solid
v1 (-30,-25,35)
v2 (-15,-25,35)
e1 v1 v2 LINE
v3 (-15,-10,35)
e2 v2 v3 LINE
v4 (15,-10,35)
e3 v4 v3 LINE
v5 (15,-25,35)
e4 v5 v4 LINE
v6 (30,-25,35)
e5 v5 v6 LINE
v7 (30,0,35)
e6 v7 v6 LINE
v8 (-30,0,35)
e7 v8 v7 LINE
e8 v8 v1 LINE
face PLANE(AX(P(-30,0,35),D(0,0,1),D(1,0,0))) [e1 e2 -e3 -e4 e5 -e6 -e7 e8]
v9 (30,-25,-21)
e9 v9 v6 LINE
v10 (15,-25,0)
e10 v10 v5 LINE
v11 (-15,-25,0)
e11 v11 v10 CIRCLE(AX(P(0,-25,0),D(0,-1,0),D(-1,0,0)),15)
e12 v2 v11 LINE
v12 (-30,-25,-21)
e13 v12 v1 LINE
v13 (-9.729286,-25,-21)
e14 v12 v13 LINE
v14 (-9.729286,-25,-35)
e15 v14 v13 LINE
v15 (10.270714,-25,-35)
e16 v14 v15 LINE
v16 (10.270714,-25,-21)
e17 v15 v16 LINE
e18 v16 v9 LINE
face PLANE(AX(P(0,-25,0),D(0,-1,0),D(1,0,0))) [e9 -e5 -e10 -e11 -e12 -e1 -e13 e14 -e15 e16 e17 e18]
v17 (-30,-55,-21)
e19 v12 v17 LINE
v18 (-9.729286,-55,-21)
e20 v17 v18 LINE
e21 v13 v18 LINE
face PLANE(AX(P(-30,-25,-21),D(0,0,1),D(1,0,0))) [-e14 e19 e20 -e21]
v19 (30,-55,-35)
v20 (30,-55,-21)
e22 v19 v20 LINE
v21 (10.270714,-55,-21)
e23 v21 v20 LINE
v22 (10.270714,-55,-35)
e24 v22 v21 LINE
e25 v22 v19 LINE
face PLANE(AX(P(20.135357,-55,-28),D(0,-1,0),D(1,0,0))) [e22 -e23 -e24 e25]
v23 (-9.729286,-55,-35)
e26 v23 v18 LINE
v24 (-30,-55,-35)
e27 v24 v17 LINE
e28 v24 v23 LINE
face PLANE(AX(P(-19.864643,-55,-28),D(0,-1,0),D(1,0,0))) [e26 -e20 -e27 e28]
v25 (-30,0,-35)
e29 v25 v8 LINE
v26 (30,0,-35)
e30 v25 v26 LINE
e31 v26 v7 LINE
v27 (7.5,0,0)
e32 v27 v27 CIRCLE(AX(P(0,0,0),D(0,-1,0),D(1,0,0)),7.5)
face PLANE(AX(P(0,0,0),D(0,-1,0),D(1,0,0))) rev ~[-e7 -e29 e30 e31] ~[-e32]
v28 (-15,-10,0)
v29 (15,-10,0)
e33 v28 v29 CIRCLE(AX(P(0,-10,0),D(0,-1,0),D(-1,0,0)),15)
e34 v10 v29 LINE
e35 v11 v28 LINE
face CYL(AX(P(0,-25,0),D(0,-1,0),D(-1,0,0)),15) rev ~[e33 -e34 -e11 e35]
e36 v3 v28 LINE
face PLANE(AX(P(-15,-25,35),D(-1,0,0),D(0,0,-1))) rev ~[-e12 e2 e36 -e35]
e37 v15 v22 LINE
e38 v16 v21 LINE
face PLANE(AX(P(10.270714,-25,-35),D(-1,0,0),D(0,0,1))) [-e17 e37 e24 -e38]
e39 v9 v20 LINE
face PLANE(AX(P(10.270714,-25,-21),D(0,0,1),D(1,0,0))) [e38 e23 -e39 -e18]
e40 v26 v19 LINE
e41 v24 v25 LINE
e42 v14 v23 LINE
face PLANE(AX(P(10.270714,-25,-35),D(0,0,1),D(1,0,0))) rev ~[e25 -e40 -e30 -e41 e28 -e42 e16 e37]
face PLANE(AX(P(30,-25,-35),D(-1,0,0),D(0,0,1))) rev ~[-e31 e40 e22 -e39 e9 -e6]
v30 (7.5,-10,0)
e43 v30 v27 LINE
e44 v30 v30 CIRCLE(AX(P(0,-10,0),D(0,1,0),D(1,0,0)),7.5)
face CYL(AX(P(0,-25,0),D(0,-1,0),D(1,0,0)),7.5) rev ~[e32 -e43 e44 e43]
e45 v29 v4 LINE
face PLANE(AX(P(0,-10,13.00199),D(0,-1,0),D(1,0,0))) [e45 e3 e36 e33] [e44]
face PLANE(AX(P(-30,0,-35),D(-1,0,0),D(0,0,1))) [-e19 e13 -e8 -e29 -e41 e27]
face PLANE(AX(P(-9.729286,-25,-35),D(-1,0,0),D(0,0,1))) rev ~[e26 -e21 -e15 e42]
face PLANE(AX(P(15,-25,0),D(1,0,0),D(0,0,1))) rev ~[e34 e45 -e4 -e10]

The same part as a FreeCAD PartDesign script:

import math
import FreeCAD as App
import Part
import Sketcher

V = App.Vector


def add_polygon(sketch, points):
    """Adds a closed chain of lines whose ends are joined by coincident constraints."""
    first, n = sketch.GeometryCount, len(points)
    for a, b in zip(points, points[1:] + points[:1]):
        sketch.addGeometry(Part.LineSegment(App.Vector(*a, 0), App.Vector(*b, 0)), False)
    for i in range(n):
        sketch.addConstraint(Sketcher.Constraint("Coincident", first + i, 2, first + (i + 1) % n, 1))

doc = App.newDocument("Part")
body = doc.addObject("PartDesign::Body", "Body")

# Sketch on XZ plane
sketch1 = body.newObject("Sketcher::SketchObject", "Sketch")
sketch1.AttachmentSupport = (doc.getObject("XZ_Plane"), [""])
sketch1.MapMode = "FlatFace"
add_polygon(sketch1, [(-30, 35), (-30, -35), (30, -35), (30, 35)])  # lines 0-3
sketch1.addConstraint(Sketcher.Constraint("Vertical", 0))
sketch1.addConstraint(Sketcher.Constraint("Horizontal", 1))
sketch1.addConstraint(Sketcher.Constraint("Vertical", 2))
sketch1.addConstraint(Sketcher.Constraint("Horizontal", 3))
sketch1.addConstraint(Sketcher.Constraint("Symmetric", 0, 2, 2, 2, -1, 1))
sketch1.addConstraint(Sketcher.Constraint("DistanceX", 1, 1, 1, 2, 60.0))
sketch1.addConstraint(Sketcher.Constraint("DistanceY", 0, 2, 0, 1, 70.0))
pad1 = body.newObject("PartDesign::Pad", "Pad")
pad1.Profile = sketch1
pad1.Length = 25

# Sketch on XZ plane
sketch2 = body.newObject("Sketcher::SketchObject", "Sketch001")
sketch2.AttachmentSupport = (doc.getObject("XZ_Plane"), [""])
sketch2.MapMode = "FlatFace"
sketch2.AttachmentOffset = App.Placement(V(0, 0, 25), App.Rotation())
sketch2.addGeometry(Part.LineSegment(V(-15, 35, 0), V(-15, 0, 0)), False)
sketch2.addGeometry(Part.ArcOfCircle(Part.Circle(V(0, 0, 0), V(0, 0, 1), 15), math.radians(180), math.radians(360)), False)
sketch2.addGeometry(Part.LineSegment(V(15, 0, 0), V(15, 35, 0)), False)
sketch2.addGeometry(Part.LineSegment(V(15, 35, 0), V(-15, 35, 0)), False)
sketch2.addConstraint(Sketcher.Constraint("Tangent", 0, 2, 1, 1))
sketch2.addConstraint(Sketcher.Constraint("Tangent", 1, 2, 2, 1))
sketch2.addConstraint(Sketcher.Constraint("Coincident", 2, 2, 3, 1))
sketch2.addConstraint(Sketcher.Constraint("Coincident", 3, 2, 0, 1))
sketch2.addConstraint(Sketcher.Constraint("Vertical", 0))
sketch2.addConstraint(Sketcher.Constraint("Vertical", 2))
sketch2.addConstraint(Sketcher.Constraint("Horizontal", 3))
sketch2.addConstraint(Sketcher.Constraint("Coincident", 1, 3, -1, 1))
sketch2.addConstraint(Sketcher.Constraint("Radius", 1, 15.0))
sketch2.addConstraint(Sketcher.Constraint("DistanceY", 0, 2, 0, 1, 35.0))
pocket1 = body.newObject("PartDesign::Pocket", "Pocket")
pocket1.Profile = sketch2
pocket1.Length = 15

# Sketch on XZ plane
sketch3 = body.newObject("Sketcher::SketchObject", "Sketch002")
sketch3.AttachmentSupport = (doc.getObject("XZ_Plane"), [""])
sketch3.MapMode = "FlatFace"
sketch3.addGeometry(Part.Circle(V(0, 0, 0), V(0, 0, 1), 8), False)
sketch3.addConstraint(Sketcher.Constraint("Coincident", 0, 3, -1, 1))
sketch3.addConstraint(Sketcher.Constraint("Diameter", 0, 15.0))
pad2 = body.newObject("PartDesign::Pad", "Pad001")
pad2.Profile = sketch3
pad2.Length = 25

# Sketch on XZ plane
sketch4 = body.newObject("Sketcher::SketchObject", "Sketch003")
sketch4.AttachmentSupport = (doc.getObject("XZ_Plane"), [""])
sketch4.MapMode = "FlatFace"
sketch4.AttachmentOffset = App.Placement(V(0, 0, 25), App.Rotation())
sketch4.addGeometry(Part.Circle(V(0, 0, 0), V(0, 0, 1), 8), False)
sketch4.addConstraint(Sketcher.Constraint("Coincident", 0, 3, -1, 1))
sketch4.addConstraint(Sketcher.Constraint("Diameter", 0, 15.0))
pocket2 = body.newObject("PartDesign::Pocket", "Pocket001")
pocket2.Profile = sketch4
pocket2.Type = "ThroughAll"

# Sketch on XZ plane
sketch5 = body.newObject("Sketcher::SketchObject", "Sketch004")
sketch5.AttachmentSupport = (doc.getObject("XZ_Plane"), [""])
sketch5.MapMode = "FlatFace"
sketch5.AttachmentOffset = App.Placement(V(0, 0, 25), App.Rotation())
add_polygon(sketch5, [(10, -21), (10, -35), (30, -35), (30, -21)])  # lines 0-3
add_polygon(sketch5, [(-30, -21), (-30, -35), (-10, -35), (-10, -21)])  # lines 4-7
sketch5.addConstraint(Sketcher.Constraint("Vertical", 0))
sketch5.addConstraint(Sketcher.Constraint("Horizontal", 1))
sketch5.addConstraint(Sketcher.Constraint("Vertical", 2))
sketch5.addConstraint(Sketcher.Constraint("Horizontal", 3))
sketch5.addConstraint(Sketcher.Constraint("Vertical", 4))
sketch5.addConstraint(Sketcher.Constraint("Horizontal", 5))
sketch5.addConstraint(Sketcher.Constraint("Vertical", 6))
sketch5.addConstraint(Sketcher.Constraint("Horizontal", 7))
sketch5.addConstraint(Sketcher.Constraint("Symmetric", 1, 2, 4, 2, -2))
sketch5.addConstraint(Sketcher.Constraint("Horizontal", 3, 2, 6, 2))
sketch5.addConstraint(Sketcher.Constraint("DistanceY", 0, 2, 0, 1, 14.0))
sketch5.addConstraint(Sketcher.Constraint("DistanceY", 0, 2, -1, 1, 35.0))
sketch5.addConstraint(Sketcher.Constraint("DistanceX", -1, 1, 1, 2, 30.0))
sketch5.addConstraint(Sketcher.Constraint("DistanceX", 5, 2, 0, 2, 20.0))
sketch5.addConstraint(Sketcher.Constraint("DistanceX", 1, 1, 1, 2, 19.729286))
pad3 = body.newObject("PartDesign::Pad", "Pad002")
pad3.Profile = sketch5
pad3.Length = 30

doc.recompute()
